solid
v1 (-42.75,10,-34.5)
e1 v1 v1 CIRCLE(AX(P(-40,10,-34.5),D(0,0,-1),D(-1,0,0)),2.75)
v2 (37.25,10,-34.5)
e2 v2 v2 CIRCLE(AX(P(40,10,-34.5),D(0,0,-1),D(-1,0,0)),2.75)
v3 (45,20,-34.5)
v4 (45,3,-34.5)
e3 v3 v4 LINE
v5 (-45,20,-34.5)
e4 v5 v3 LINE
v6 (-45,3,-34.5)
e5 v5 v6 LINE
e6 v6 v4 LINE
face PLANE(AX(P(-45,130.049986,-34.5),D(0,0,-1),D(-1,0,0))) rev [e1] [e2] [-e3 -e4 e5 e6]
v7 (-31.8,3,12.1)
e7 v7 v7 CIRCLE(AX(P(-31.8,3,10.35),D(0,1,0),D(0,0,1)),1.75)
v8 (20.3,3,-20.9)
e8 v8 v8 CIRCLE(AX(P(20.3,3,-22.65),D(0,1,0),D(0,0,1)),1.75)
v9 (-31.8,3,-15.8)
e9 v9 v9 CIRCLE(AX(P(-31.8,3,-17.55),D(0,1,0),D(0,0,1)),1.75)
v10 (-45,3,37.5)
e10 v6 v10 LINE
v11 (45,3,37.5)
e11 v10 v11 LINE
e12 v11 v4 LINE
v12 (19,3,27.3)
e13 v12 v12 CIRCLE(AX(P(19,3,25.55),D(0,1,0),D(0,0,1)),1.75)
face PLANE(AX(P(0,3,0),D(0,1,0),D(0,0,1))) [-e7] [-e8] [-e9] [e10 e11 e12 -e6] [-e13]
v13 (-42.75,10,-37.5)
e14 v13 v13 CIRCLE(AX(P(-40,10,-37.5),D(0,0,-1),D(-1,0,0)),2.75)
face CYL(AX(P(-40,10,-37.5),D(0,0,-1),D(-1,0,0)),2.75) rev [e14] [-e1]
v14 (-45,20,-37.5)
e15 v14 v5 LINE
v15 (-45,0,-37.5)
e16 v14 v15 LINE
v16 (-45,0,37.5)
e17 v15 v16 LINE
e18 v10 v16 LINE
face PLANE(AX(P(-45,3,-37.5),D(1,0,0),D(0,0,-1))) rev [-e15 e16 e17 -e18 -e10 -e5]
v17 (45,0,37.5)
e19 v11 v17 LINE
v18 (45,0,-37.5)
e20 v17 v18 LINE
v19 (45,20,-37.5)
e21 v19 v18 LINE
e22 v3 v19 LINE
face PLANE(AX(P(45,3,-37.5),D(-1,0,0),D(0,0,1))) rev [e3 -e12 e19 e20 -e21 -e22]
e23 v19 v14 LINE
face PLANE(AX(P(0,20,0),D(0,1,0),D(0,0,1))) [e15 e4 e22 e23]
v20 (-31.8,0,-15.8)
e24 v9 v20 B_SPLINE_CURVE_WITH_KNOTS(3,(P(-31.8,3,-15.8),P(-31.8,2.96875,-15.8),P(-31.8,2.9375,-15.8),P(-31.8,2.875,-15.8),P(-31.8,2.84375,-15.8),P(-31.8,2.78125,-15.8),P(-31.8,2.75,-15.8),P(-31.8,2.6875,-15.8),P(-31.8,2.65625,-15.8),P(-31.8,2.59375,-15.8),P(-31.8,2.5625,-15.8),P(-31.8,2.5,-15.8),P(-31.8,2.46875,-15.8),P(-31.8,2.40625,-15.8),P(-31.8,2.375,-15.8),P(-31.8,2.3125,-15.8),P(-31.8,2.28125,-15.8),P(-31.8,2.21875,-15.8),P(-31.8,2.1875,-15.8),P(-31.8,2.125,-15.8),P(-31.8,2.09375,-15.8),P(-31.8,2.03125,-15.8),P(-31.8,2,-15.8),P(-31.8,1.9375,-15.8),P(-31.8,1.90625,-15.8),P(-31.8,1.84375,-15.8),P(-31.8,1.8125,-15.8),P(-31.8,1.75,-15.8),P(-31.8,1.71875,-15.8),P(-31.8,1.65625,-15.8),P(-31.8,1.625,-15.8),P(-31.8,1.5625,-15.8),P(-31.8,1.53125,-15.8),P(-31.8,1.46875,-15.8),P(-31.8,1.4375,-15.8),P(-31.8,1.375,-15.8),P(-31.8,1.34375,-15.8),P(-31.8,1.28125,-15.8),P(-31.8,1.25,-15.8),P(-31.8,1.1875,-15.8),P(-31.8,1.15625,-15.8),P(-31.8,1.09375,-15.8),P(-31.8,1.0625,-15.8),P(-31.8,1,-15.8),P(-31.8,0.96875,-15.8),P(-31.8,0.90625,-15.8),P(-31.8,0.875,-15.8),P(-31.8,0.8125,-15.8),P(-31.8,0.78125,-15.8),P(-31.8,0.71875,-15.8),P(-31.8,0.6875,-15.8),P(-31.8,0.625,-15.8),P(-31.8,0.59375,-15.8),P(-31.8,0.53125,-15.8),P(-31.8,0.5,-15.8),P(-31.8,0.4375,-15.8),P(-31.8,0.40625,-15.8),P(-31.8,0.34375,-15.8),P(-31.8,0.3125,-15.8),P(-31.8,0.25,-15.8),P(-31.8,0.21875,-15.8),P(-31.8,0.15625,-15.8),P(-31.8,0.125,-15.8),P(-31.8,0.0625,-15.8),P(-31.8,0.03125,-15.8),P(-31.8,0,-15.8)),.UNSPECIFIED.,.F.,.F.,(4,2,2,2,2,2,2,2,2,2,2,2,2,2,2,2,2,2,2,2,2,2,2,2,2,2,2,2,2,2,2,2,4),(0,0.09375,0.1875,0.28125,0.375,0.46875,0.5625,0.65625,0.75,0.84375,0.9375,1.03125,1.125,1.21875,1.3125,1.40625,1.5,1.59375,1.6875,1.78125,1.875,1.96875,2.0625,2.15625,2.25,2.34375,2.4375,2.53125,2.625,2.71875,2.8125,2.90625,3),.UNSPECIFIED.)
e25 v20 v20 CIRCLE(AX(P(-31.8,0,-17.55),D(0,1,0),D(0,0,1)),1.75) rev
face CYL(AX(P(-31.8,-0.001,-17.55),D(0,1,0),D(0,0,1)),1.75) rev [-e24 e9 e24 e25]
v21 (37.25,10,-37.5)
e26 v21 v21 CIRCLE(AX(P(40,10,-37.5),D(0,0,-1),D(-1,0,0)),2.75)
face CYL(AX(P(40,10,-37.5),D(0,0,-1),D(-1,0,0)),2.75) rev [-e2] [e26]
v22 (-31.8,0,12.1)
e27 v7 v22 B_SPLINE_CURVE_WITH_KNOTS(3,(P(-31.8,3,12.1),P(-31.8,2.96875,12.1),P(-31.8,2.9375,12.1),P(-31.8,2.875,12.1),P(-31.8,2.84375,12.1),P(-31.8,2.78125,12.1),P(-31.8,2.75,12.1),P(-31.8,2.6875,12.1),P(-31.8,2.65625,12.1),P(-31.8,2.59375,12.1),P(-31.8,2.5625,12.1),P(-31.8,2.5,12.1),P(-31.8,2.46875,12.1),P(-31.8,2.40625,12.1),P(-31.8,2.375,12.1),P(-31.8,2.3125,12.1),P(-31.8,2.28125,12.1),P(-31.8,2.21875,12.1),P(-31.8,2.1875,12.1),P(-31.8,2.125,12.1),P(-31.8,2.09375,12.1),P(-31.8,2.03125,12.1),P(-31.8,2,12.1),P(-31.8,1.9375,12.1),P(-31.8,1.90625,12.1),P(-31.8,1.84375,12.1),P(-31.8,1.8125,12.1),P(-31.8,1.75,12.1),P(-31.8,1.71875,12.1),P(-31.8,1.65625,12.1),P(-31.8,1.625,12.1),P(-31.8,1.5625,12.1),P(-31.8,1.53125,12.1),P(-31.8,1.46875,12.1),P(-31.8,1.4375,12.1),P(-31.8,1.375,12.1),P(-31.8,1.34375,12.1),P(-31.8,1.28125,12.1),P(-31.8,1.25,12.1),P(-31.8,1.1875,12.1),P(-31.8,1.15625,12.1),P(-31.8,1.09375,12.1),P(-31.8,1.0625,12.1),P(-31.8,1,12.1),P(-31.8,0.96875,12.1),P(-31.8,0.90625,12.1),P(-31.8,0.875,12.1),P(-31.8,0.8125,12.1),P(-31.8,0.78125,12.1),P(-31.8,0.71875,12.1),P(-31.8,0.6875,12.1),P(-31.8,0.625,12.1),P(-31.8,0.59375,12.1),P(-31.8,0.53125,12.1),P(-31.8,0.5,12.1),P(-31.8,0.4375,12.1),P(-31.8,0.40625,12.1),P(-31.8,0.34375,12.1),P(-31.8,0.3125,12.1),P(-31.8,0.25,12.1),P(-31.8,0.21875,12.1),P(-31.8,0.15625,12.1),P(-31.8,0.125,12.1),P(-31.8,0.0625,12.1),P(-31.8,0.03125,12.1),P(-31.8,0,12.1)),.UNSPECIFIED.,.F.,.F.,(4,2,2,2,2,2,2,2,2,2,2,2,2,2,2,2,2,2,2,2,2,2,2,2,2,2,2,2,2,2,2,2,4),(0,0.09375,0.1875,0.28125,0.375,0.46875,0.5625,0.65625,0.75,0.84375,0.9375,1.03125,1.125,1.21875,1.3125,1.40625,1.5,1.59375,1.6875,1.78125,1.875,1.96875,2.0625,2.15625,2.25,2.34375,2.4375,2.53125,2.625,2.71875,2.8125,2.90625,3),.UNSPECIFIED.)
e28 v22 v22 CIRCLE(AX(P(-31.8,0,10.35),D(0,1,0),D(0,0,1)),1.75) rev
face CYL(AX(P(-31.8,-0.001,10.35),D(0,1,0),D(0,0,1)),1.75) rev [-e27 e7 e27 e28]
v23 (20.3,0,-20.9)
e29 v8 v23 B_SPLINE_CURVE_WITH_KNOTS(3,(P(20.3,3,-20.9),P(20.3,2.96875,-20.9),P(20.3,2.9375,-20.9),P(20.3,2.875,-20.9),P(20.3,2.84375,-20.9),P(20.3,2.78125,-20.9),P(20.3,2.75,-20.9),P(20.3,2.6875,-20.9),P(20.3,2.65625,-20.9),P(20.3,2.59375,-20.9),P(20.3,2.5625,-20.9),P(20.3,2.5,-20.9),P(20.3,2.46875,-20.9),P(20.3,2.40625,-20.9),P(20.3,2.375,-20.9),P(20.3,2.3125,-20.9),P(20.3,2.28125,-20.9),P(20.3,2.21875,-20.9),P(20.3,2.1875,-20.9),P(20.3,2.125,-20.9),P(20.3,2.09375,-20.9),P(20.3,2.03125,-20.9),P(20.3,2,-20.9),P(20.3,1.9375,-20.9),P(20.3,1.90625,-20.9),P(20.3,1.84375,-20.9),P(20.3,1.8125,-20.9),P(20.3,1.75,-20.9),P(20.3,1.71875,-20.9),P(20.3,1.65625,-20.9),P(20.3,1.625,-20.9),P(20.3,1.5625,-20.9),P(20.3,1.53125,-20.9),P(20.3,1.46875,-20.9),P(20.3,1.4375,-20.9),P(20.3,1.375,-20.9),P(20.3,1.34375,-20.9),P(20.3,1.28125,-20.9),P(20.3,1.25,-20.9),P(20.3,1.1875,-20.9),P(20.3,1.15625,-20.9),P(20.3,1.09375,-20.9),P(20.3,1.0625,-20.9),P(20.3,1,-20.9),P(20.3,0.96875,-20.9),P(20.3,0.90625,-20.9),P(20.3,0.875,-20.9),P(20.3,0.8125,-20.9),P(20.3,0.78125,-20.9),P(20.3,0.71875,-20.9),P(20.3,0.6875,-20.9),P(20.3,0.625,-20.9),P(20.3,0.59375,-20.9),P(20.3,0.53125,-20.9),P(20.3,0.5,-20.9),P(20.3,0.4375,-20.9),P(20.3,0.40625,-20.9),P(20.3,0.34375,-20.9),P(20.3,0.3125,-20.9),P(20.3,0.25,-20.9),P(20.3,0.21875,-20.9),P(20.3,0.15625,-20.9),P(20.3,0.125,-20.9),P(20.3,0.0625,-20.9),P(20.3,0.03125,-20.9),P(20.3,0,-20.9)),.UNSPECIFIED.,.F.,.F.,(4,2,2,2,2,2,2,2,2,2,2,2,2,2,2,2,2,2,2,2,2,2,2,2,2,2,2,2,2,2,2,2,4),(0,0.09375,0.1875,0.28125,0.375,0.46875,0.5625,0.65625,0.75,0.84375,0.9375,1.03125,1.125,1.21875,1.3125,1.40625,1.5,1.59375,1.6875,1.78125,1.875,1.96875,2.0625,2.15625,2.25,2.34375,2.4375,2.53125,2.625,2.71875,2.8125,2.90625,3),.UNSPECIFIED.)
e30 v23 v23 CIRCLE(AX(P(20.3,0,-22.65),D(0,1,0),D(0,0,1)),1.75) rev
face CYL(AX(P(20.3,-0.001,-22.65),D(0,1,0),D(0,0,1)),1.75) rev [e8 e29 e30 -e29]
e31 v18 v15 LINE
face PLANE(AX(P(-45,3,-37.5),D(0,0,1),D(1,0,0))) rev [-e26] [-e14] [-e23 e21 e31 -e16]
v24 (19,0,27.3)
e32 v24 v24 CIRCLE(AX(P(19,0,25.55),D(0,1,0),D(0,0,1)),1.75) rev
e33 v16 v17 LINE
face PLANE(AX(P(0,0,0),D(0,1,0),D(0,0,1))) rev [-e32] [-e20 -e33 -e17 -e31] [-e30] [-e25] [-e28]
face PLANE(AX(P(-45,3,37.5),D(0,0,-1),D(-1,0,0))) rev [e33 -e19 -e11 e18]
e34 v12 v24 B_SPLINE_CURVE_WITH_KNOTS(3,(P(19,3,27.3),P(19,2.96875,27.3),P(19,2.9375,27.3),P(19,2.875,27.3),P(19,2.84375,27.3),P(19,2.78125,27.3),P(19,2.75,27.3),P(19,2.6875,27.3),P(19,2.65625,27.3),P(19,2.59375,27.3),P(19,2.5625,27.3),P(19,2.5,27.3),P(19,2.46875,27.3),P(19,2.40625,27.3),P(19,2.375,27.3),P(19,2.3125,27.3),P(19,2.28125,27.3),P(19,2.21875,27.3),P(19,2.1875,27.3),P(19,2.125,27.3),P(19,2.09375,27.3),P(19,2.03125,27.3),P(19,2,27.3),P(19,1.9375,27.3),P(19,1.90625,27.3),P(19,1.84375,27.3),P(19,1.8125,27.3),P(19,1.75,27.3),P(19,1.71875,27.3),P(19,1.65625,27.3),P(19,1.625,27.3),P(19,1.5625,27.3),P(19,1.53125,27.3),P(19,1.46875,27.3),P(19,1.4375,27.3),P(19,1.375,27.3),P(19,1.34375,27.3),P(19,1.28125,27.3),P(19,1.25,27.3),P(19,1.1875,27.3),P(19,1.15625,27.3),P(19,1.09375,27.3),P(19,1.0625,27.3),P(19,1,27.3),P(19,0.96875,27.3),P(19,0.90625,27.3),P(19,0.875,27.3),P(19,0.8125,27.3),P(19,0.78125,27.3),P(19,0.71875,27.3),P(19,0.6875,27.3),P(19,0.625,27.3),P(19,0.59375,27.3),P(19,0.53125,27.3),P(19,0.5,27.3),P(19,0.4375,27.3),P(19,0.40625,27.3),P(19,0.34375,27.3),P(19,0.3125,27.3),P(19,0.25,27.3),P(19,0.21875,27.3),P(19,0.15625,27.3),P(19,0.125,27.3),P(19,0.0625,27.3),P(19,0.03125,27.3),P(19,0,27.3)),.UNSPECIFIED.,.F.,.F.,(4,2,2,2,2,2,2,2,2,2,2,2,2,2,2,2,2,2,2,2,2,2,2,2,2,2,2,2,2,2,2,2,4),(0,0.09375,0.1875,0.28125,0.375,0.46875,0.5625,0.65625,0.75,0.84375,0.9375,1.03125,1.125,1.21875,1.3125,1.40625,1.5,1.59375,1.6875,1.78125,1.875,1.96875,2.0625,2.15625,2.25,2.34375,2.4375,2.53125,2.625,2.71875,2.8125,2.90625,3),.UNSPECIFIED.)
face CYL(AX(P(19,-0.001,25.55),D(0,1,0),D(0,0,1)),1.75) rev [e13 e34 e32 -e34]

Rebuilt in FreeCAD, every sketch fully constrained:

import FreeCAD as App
import Part
import Sketcher

V = App.Vector


def add_polygon(sketch, points):
    """Adds a closed chain of lines whose ends are joined by coincident constraints."""
    first, n = sketch.GeometryCount, len(points)
    for a, b in zip(points, points[1:] + points[:1]):
        sketch.addGeometry(Part.LineSegment(App.Vector(*a, 0), App.Vector(*b, 0)), False)
    for i in range(n):
        sketch.addConstraint(Sketcher.Constraint("Coincident", first + i, 2, first + (i + 1) % n, 1))

doc = App.newDocument("Part")
body = doc.addObject("PartDesign::Body", "Body")

sketch1 = body.newObject("Sketcher::SketchObject", "Sketch")
sketch1.AttachmentSupport = (doc.getObject("XZ_Plane"), [""])
sketch1.MapMode = "FlatFace"
add_polygon(sketch1, [(-45, -37.5), (-45, 37.5), (45, 37.5), (45, -37.5)])
sketch1.addConstraint([
    Sketcher.Constraint("Vertical", 0),
    Sketcher.Constraint("Horizontal", 1),
    Sketcher.Constraint("Vertical", 2),
    Sketcher.Constraint("Horizontal", 3),
    Sketcher.Constraint("Symmetric", 0, 2, 2, 2, -1, 1),
    Sketcher.Constraint("DistanceX", 1, 1, 1, 2, 90.0),
    Sketcher.Constraint("DistanceY", 0, 1, 0, 2, 75.0),
])
pad1 = body.newObject("PartDesign::Pad", "Pad")
pad1.Profile = sketch1
pad1.Length = 3
pad1.Reversed = True

sketch2 = body.newObject("Sketcher::SketchObject", "Sketch001")
sketch2.AttachmentSupport = (doc.getObject("XZ_Plane"), [""])
sketch2.MapMode = "FlatFace"
sketch2.AttachmentOffset = App.Placement(V(0, 0, -3), App.Rotation())
add_polygon(sketch2, [(-45, -37.5), (-45, -34.5), (45, -34.5), (45, -37.5)])
sketch2.addConstraint([
    Sketcher.Constraint("Vertical", 0),
    Sketcher.Constraint("Horizontal", 1),
    Sketcher.Constraint("Vertical", 2),
    Sketcher.Constraint("Horizontal", 3),
    Sketcher.Constraint("DistanceX", 1, 1, 1, 2, 90.0),
    Sketcher.Constraint("DistanceY", 0, 1, 0, 2, 3.0),
    Sketcher.Constraint("DistanceX", 0, 2, -1, 1, 45.0),
    Sketcher.Constraint("DistanceY", 0, 2, -1, 1, 34.5),
])
pad2 = body.newObject("PartDesign::Pad", "Pad001")
pad2.Profile = sketch2
pad2.Length = 17
pad2.Reversed = True

sketch3 = body.newObject("Sketcher::SketchObject", "Sketch002")
sketch3.AttachmentSupport = (doc.getObject("XY_Plane"), [""])
sketch3.MapMode = "FlatFace"
sketch3.AttachmentOffset = App.Placement(V(0, 0, -37.5), App.Rotation())
sketch3.addGeometry([
    Part.Circle(V(40, 10, 0), V(0, 0, 1), 2.75),
    Part.Circle(V(-40, 10, 0), V(0, 0, 1), 2.75),
], False)
sketch3.addConstraint([
    Sketcher.Constraint("Equal", 0, 1),
    Sketcher.Constraint("Symmetric", 0, 3, 1, 3, -2),
    Sketcher.Constraint("Diameter", 0, 5.5),
    Sketcher.Constraint("DistanceX", -1, 1, 0, 3, 40.0),
    Sketcher.Constraint("DistanceY", -1, 1, 0, 3, 10.0),
])
doc.recompute()
hole = body.newObject("PartDesign::Hole", "Hole")
hole.Profile = sketch3
hole.ThreadType = "None"
hole.Diameter = 5.5
hole.DepthType = "ThroughAll"
hole.Reversed = True

sketch4 = body.newObject("Sketcher::SketchObject", "Sketch003")
sketch4.AttachmentSupport = (doc.getObject("XZ_Plane"), [""])
sketch4.MapMode = "FlatFace"
sketch4.AttachmentOffset = App.Placement(V(0, 0, -3), App.Rotation())
sketch4.addGeometry(Part.Circle(V(-31.8, -17.55, 0), V(0, 0, 1), 1.75), False)
sketch4.addConstraint([
    Sketcher.Constraint("Diameter", 0, 3.5),
    Sketcher.Constraint("DistanceX", 0, 3, -1, 1, 31.8),
    Sketcher.Constraint("DistanceY", 0, 3, -1, 1, 17.55),
])
pocket1 = body.newObject("PartDesign::Pocket", "Pocket")
pocket1.Profile = sketch4
pocket1.Type = "UpToFirst"
pocket1.Reversed = True

sketch5 = body.newObject("Sketcher::SketchObject", "Sketch004")
sketch5.AttachmentSupport = (doc.getObject("XZ_Plane"), [""])
sketch5.MapMode = "FlatFace"
sketch5.AttachmentOffset = App.Placement(V(0, 0, -3), App.Rotation())
sketch5.addGeometry(Part.Circle(V(-31.8, 10.35, 0), V(0, 0, 1), 1.75), False)
sketch5.addConstraint([
    Sketcher.Constraint("Diameter", 0, 3.5),
    Sketcher.Constraint("DistanceX", 0, 3, -1, 1, 31.8),
    Sketcher.Constraint("DistanceY", -1, 1, 0, 3, 10.35),
])
pocket2 = body.newObject("PartDesign::Pocket", "Pocket001")
pocket2.Profile = sketch5
pocket2.Type = "UpToFirst"
pocket2.Reversed = True

sketch6 = body.newObject("Sketcher::SketchObject", "Sketch005")
sketch6.AttachmentSupport = (doc.getObject("XZ_Plane"), [""])
sketch6.MapMode = "FlatFace"
sketch6.AttachmentOffset = App.Placement(V(0, 0, -3), App.Rotation())
sketch6.addGeometry(Part.Circle(V(19, 25.55, 0), V(0, 0, 1), 1.75), False)
sketch6.addConstraint([
    Sketcher.Constraint("Diameter", 0, 3.5),
    Sketcher.Constraint("DistanceX", -1, 1, 0, 3, 19.0),
    Sketcher.Constraint("DistanceY", -1, 1, 0, 3, 25.55),
])
pocket3 = body.newObject("PartDesign::Pocket", "Pocket002")
pocket3.Profile = sketch6
pocket3.Type = "UpToFirst"
pocket3.Reversed = True

sketch7 = body.newObject("Sketcher::SketchObject", "Sketch006")
sketch7.AttachmentSupport = (doc.getObject("XZ_Plane"), [""])
sketch7.MapMode = "FlatFace"
sketch7.AttachmentOffset = App.Placement(V(0, 0, -3), App.Rotation())
sketch7.addGeometry(Part.Circle(V(20.3, -22.65, 0), V(0, 0, 1), 1.75), False)
sketch7.addConstraint([
    Sketcher.Constraint("Diameter", 0, 3.5),
    Sketcher.Constraint("DistanceX", -1, 1, 0, 3, 20.3),
    Sketcher.Constraint("DistanceY", 0, 3, -1, 1, 22.65),
])
pocket4 = body.newObject("PartDesign::Pocket", "Pocket003")
pocket4.Profile = sketch7
pocket4.Type = "UpToFirst"
pocket4.Reversed = True

doc.recompute()
